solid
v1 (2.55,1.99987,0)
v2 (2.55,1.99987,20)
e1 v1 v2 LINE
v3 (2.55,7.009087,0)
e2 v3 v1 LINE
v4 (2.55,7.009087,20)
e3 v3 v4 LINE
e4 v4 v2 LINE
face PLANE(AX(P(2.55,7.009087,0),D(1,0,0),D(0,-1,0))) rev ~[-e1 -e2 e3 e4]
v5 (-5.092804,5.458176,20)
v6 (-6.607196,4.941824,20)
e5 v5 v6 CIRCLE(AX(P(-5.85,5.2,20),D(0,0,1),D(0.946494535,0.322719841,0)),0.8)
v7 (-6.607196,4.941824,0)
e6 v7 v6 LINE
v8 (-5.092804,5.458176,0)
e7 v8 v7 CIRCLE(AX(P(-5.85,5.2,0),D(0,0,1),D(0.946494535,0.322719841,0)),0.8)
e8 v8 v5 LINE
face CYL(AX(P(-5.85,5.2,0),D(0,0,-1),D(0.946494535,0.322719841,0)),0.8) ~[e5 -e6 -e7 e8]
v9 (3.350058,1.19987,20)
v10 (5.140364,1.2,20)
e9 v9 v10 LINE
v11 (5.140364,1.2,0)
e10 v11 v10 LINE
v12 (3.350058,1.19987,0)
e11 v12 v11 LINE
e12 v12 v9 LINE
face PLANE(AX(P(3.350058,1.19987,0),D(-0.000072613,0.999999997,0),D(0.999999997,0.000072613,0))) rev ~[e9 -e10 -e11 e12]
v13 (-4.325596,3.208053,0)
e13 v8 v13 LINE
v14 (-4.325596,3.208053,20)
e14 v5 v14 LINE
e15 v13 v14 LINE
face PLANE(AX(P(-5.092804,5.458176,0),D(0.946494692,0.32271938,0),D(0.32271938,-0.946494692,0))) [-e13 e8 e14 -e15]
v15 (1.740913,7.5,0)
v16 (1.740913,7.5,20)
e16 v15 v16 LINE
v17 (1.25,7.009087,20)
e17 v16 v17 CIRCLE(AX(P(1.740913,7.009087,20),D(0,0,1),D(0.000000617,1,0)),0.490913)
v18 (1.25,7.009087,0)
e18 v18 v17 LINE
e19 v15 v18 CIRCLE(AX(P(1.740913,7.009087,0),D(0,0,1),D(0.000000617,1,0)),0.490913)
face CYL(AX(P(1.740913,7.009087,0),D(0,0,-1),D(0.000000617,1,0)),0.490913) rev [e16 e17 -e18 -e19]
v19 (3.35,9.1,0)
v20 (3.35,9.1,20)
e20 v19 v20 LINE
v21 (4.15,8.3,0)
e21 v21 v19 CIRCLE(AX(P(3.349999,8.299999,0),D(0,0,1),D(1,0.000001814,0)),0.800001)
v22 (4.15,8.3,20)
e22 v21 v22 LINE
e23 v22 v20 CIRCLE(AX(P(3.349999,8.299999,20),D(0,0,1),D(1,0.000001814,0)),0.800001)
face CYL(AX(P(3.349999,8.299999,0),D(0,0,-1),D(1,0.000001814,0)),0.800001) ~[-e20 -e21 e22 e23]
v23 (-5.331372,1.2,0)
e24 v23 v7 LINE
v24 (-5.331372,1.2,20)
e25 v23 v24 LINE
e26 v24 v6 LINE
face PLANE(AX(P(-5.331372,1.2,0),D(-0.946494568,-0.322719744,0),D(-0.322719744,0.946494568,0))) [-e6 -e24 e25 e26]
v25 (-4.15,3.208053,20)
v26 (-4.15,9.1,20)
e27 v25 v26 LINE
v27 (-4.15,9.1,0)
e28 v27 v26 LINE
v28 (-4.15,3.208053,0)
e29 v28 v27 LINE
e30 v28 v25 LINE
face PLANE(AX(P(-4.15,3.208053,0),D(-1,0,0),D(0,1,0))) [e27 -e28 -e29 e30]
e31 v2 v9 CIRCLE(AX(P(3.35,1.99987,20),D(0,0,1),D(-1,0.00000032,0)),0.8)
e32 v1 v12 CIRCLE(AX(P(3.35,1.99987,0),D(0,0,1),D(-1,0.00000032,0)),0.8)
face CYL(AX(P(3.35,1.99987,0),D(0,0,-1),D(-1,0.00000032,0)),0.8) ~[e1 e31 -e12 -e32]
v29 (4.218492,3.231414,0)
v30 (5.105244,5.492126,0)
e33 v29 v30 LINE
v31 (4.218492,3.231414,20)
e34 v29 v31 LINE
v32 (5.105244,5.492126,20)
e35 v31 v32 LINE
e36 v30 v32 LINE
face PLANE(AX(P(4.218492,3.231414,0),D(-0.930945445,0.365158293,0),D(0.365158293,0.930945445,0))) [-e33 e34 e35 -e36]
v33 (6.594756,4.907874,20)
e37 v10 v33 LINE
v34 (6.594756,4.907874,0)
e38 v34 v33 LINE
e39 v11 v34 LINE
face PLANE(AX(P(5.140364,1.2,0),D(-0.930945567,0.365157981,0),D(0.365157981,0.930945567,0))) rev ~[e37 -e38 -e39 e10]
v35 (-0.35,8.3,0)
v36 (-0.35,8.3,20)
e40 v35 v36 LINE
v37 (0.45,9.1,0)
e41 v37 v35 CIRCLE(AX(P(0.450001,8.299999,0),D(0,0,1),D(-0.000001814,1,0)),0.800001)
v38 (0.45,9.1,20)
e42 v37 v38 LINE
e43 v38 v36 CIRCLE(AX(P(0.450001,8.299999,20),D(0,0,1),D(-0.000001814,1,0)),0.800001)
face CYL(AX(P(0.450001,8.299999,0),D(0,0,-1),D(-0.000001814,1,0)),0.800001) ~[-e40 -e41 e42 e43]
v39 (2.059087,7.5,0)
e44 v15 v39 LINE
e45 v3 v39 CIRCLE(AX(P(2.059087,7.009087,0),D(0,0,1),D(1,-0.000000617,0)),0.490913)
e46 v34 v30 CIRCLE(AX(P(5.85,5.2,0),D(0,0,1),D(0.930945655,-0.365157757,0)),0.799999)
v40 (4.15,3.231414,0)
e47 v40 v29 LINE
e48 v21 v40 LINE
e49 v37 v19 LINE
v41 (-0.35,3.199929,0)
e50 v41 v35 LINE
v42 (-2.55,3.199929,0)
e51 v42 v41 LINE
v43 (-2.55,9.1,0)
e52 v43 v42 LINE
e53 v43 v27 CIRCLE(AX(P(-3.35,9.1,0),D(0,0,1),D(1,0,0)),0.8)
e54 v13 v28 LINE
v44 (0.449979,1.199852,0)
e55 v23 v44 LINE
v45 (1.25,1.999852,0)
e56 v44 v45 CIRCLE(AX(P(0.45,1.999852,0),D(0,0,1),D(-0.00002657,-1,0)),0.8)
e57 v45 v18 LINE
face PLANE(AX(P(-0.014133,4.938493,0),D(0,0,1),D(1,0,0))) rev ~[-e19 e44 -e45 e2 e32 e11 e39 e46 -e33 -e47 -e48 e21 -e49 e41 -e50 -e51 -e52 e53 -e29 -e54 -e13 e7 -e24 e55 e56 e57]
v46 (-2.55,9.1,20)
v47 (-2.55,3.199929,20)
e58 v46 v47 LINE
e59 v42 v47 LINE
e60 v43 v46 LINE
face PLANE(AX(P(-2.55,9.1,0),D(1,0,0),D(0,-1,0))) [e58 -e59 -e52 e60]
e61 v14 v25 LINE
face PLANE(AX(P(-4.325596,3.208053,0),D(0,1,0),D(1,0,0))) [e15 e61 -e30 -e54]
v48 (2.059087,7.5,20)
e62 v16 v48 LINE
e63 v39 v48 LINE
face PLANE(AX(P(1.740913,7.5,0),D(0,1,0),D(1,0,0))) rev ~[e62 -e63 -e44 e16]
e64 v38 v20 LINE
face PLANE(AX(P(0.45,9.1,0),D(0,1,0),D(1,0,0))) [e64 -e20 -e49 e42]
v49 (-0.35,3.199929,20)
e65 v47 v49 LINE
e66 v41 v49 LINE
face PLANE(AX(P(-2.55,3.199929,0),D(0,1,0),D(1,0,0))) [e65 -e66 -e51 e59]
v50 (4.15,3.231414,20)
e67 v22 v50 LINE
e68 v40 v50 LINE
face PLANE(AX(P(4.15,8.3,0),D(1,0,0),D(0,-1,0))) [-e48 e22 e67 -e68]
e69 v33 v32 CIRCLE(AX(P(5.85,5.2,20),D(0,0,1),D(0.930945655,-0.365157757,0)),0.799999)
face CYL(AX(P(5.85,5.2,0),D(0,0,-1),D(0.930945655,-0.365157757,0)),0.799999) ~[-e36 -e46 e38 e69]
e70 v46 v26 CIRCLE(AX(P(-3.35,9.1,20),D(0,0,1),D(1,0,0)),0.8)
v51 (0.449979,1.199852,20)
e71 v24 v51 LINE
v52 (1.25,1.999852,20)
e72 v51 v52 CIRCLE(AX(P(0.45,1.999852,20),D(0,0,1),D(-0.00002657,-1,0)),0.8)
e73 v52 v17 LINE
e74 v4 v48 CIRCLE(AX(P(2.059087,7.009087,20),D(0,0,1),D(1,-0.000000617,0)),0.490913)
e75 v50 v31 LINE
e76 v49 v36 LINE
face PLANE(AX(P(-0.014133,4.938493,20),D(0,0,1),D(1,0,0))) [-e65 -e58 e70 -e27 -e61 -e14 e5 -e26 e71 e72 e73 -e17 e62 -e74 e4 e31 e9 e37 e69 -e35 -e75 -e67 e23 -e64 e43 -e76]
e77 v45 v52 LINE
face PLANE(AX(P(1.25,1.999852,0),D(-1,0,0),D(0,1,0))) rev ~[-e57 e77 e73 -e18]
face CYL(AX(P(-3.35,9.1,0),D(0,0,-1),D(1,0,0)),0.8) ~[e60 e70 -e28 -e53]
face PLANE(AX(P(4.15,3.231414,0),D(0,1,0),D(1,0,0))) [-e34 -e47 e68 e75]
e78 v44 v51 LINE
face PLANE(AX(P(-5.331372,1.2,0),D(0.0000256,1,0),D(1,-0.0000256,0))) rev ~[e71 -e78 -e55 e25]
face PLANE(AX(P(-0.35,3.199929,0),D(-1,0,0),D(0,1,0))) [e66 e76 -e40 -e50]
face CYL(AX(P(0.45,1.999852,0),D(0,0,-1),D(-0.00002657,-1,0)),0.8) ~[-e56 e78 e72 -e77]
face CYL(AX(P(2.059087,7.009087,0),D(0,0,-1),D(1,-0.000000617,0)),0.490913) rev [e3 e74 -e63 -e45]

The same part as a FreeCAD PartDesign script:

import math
import FreeCAD as App
import Part
import Sketcher

doc = App.newDocument("Part")
params = doc.addObject("Spreadsheet::Sheet", "Params")
for row, (alias, value) in enumerate([
    ("sketch1_radius", "0.799999 mm"),
    ("sketch1_radius2", "0.800001 mm"),
    ("sketch1_width", "2.9 mm"),
    ("sketch1_width2", "2.2 mm"),
    ("pad1_length", "20 mm"),
], start=1):
    params.set(f"A{row}", alias)
    params.set(f"B{row}", "=" + value)
    params.setAlias(f"B{row}", alias)

body = doc.addObject("PartDesign::Body", "Body")

sketch1 = body.newObject("Sketcher::SketchObject", "Sketch")
sketch1.AttachmentSupport = (doc.getObject("XY_Plane"), [""])
sketch1.MapMode = "FlatFace"
sketch1.addGeometry(Part.LineSegment(App.Vector(5.14, 1.2, 0), App.Vector(6.59, 4.91, 0)), False)
sketch1.addGeometry(Part.ArcOfCircle(Part.Circle(App.Vector(5.85, 5.2, 0), App.Vector(0, 0, 1), 0.8), math.radians(-21), math.radians(159)), False)
sketch1.addGeometry(Part.LineSegment(App.Vector(5.11, 5.49, 0), App.Vector(4.22, 3.23, 0)), False)
sketch1.addGeometry(Part.LineSegment(App.Vector(4.22, 3.23, 0), App.Vector(4.15, 3.23, 0)), False)
sketch1.addGeometry(Part.LineSegment(App.Vector(4.15, 3.23, 0), App.Vector(4.15, 8.3, 0)), False)
sketch1.addGeometry(Part.ArcOfCircle(Part.Circle(App.Vector(3.35, 8.3, 0), App.Vector(0, 0, 1), 0.8), math.radians(0), math.radians(90)), False)
sketch1.addGeometry(Part.LineSegment(App.Vector(3.35, 9.1, 0), App.Vector(0.45, 9.1, 0)), False)
sketch1.addGeometry(Part.ArcOfCircle(Part.Circle(App.Vector(0.45, 8.3, 0), App.Vector(0, 0, 1), 0.8), math.radians(90), math.radians(180)), False)
sketch1.addGeometry(Part.LineSegment(App.Vector(-0.35, 8.3, 0), App.Vector(-0.35, 3.2, 0)), False)
sketch1.addGeometry(Part.LineSegment(App.Vector(-0.35, 3.2, 0), App.Vector(-2.55, 3.2, 0)), False)
sketch1.addGeometry(Part.LineSegment(App.Vector(-2.55, 3.2, 0), App.Vector(-2.55, 9.1, 0)), False)
sketch1.addGeometry(Part.ArcOfCircle(Part.Circle(App.Vector(-3.35, 9.1, 0), App.Vector(0, 0, 1), 0.8), math.radians(0), math.radians(180)), False)
sketch1.addGeometry(Part.LineSegment(App.Vector(-4.15, 9.1, 0), App.Vector(-4.15, 3.21, 0)), False)
sketch1.addGeometry(Part.LineSegment(App.Vector(-4.15, 3.21, 0), App.Vector(-4.33, 3.21, 0)), False)
sketch1.addGeometry(Part.LineSegment(App.Vector(-4.33, 3.21, 0), App.Vector(-5.09, 5.46, 0)), False)
sketch1.addGeometry(Part.ArcOfCircle(Part.Circle(App.Vector(-5.85, 5.2, 0), App.Vector(0, 0, 1), 0.8), math.radians(19), math.radians(199)), False)
sketch1.addGeometry(Part.LineSegment(App.Vector(-6.61, 4.94, 0), App.Vector(-5.33, 1.2, 0)), False)
sketch1.addGeometry(Part.LineSegment(App.Vector(-5.33, 1.2, 0), App.Vector(0.45, 1.2, 0)), False)
sketch1.addGeometry(Part.ArcOfCircle(Part.Circle(App.Vector(0.45, 2, 0), App.Vector(0, 0, 1), 0.8), math.radians(-90), math.radians(0)), False)
sketch1.addGeometry(Part.LineSegment(App.Vector(1.25, 2, 0), App.Vector(1.25, 7.01, 0)), False)
sketch1.addGeometry(Part.ArcOfCircle(Part.Circle(App.Vector(1.74, 7.01, 0), App.Vector(0, 0, 1), 0.49), math.radians(90), math.radians(180)), False)
sketch1.addGeometry(Part.LineSegment(App.Vector(1.74, 7.5, 0), App.Vector(2.06, 7.5, 0)), False)
sketch1.addGeometry(Part.ArcOfCircle(Part.Circle(App.Vector(2.06, 7.01, 0), App.Vector(0, 0, 1), 0.49), math.radians(0), math.radians(90)), False)
sketch1.addGeometry(Part.LineSegment(App.Vector(2.55, 7.01, 0), App.Vector(2.55, 2, 0)), False)
sketch1.addGeometry(Part.ArcOfCircle(Part.Circle(App.Vector(3.35, 2, 0), App.Vector(0, 0, 1), 0.8), math.radians(180), math.radians(270)), False)
sketch1.addGeometry(Part.LineSegment(App.Vector(3.35, 1.2, 0), App.Vector(5.14, 1.2, 0)), False)
sketch1.addConstraint(Sketcher.Constraint("Tangent", 0, 2, 1, 1))
sketch1.addConstraint(Sketcher.Constraint("Tangent", 1, 2, 2, 1))
sketch1.addConstraint(Sketcher.Constraint("Coincident", 2, 2, 3, 1))
sketch1.addConstraint(Sketcher.Constraint("Coincident", 3, 2, 4, 1))
sketch1.addConstraint(Sketcher.Constraint("Tangent", 4, 2, 5, 1))
sketch1.addConstraint(Sketcher.Constraint("Tangent", 5, 2, 6, 1))
sketch1.addConstraint(Sketcher.Constraint("Tangent", 6, 2, 7, 1))
sketch1.addConstraint(Sketcher.Constraint("Tangent", 7, 2, 8, 1))
sketch1.addConstraint(Sketcher.Constraint("Coincident", 8, 2, 9, 1))
sketch1.addConstraint(Sketcher.Constraint("Coincident", 9, 2, 10, 1))
sketch1.addConstraint(Sketcher.Constraint("Tangent", 10, 2, 11, 1))
sketch1.addConstraint(Sketcher.Constraint("Tangent", 11, 2, 12, 1))
sketch1.addConstraint(Sketcher.Constraint("Coincident", 12, 2, 13, 1))
sketch1.addConstraint(Sketcher.Constraint("Coincident", 13, 2, 14, 1))
sketch1.addConstraint(Sketcher.Constraint("Tangent", 14, 2, 15, 1))
sketch1.addConstraint(Sketcher.Constraint("Tangent", 15, 2, 16, 1))
sketch1.addConstraint(Sketcher.Constraint("Coincident", 16, 2, 17, 1))
sketch1.addConstraint(Sketcher.Constraint("Tangent", 17, 2, 18, 1))
sketch1.addConstraint(Sketcher.Constraint("Tangent", 18, 2, 19, 1))
sketch1.addConstraint(Sketcher.Constraint("Tangent", 19, 2, 20, 2))
sketch1.addConstraint(Sketcher.Constraint("Tangent", 20, 1, 21, 1))
sketch1.addConstraint(Sketcher.Constraint("Tangent", 21, 2, 22, 2))
sketch1.addConstraint(Sketcher.Constraint("Tangent", 22, 1, 23, 1))
sketch1.addConstraint(Sketcher.Constraint("Tangent", 23, 2, 24, 1))
sketch1.addConstraint(Sketcher.Constraint("Tangent", 24, 2, 25, 1))
sketch1.addConstraint(Sketcher.Constraint("Coincident", 25, 2, 0, 1))
sketch1.addConstraint(Sketcher.Constraint("Horizontal", 3))
sketch1.addConstraint(Sketcher.Constraint("Vertical", 4))
sketch1.addConstraint(Sketcher.Constraint("Horizontal", 6))
sketch1.addConstraint(Sketcher.Constraint("Vertical", 8))
sketch1.addConstraint(Sketcher.Constraint("Horizontal", 9))
sketch1.addConstraint(Sketcher.Constraint("Vertical", 10))
sketch1.addConstraint(Sketcher.Constraint("Vertical", 12))
sketch1.addConstraint(Sketcher.Constraint("Horizontal", 13))
sketch1.addConstraint(Sketcher.Constraint("Vertical", 19))
sketch1.addConstraint(Sketcher.Constraint("Horizontal", 21))
sketch1.addConstraint(Sketcher.Constraint("Vertical", 23))
sketch1.addConstraint(Sketcher.Constraint("Equal", 5, 7))
sketch1.addConstraint(Sketcher.Constraint("Equal", 7, 11))
sketch1.addConstraint(Sketcher.Constraint("Equal", 11, 15))
sketch1.addConstraint(Sketcher.Constraint("Equal", 15, 18))
sketch1.addConstraint(Sketcher.Constraint("Equal", 20, 22))
sketch1.addConstraint(Sketcher.Constraint("Equal", 18, 24))
sketch1.addConstraint(Sketcher.Constraint("Symmetric", 1, 3, 15, 3, -2))
sketch1.addConstraint(Sketcher.Constraint("Parallel", 0, 2))
sketch1.addConstraint(Sketcher.Constraint("Parallel", 14, 16))
sketch1.addConstraint(Sketcher.Constraint("Horizontal", 11, 3, 5, 2))
sketch1.addConstraint(Sketcher.Constraint("Horizontal", 16, 2, 25, 2))
sketch1.addConstraint(Sketcher.Constraint("Vertical", 7, 3, 18, 3))
sketch1.addConstraint(Sketcher.Constraint("Vertical", 5, 3, 24, 3))
sketch1.addConstraint(Sketcher.Constraint("Radius", 1, 0.799999))
sketch1.addConstraint(Sketcher.Constraint("Radius", 5, 0.800001))
sketch1.addConstraint(Sketcher.Constraint("DistanceX", 6, 2, 6, 1, 2.9))
sketch1.addConstraint(Sketcher.Constraint("DistanceX", 9, 2, 9, 1, 2.2))
sketch1.addConstraint(Sketcher.Constraint("DistanceY", 16, 2, 15, 3, 4.0))
sketch1.addConstraint(Sketcher.Constraint("DistanceY", -1, 1, 1, 3, 5.2))
sketch1.addConstraint(Sketcher.Constraint("DistanceY", -1, 1, 5, 3, 8.299999))
sketch1.addConstraint(Sketcher.Constraint("DistanceY", -1, 1, 20, 1, 7.5))
sketch1.addConstraint(Sketcher.Constraint("DistanceX", 5, 3, 1, 3, 2.500001))
sketch1.addConstraint(Sketcher.Constraint("DistanceX", 15, 3, 11, 3, 2.5))
sketch1.addConstraint(Sketcher.Constraint("Radius", 20, 0.490913))
sketch1.addConstraint(Sketcher.Constraint("DistanceY", 8, 2, 8, 1, 5.100071))
sketch1.addConstraint(Sketcher.Constraint("DistanceY", 18, 3, 12, 2, 1.208201))
sketch1.addConstraint(Sketcher.Constraint("DistanceX", 15, 2, 13, 2, 2.2816))
sketch1.addConstraint(Sketcher.Constraint("Distance", 0, 3.982912))
sketch1.addConstraint(Sketcher.Constraint("Distance", 16, 3.95335))
sketch1.addConstraint(Sketcher.Constraint("DistanceX", 3, 2, 3, 1, 0.068492))
sketch1.addConstraint(Sketcher.Constraint("DistanceY", 23, 2, 23, 1, 5.009217))
sketch1.setExpression("Constraints[50]", "Params.sketch1_radius")
sketch1.setExpression("Constraints[51]", "Params.sketch1_radius2")
sketch1.setExpression("Constraints[52]", "Params.sketch1_width")
sketch1.setExpression("Constraints[53]", "Params.sketch1_width2")
pad1 = body.newObject("PartDesign::Pad", "Pad")
pad1.Profile = sketch1
pad1.setExpression("Length", "Params.pad1_length")

doc.recompute()
